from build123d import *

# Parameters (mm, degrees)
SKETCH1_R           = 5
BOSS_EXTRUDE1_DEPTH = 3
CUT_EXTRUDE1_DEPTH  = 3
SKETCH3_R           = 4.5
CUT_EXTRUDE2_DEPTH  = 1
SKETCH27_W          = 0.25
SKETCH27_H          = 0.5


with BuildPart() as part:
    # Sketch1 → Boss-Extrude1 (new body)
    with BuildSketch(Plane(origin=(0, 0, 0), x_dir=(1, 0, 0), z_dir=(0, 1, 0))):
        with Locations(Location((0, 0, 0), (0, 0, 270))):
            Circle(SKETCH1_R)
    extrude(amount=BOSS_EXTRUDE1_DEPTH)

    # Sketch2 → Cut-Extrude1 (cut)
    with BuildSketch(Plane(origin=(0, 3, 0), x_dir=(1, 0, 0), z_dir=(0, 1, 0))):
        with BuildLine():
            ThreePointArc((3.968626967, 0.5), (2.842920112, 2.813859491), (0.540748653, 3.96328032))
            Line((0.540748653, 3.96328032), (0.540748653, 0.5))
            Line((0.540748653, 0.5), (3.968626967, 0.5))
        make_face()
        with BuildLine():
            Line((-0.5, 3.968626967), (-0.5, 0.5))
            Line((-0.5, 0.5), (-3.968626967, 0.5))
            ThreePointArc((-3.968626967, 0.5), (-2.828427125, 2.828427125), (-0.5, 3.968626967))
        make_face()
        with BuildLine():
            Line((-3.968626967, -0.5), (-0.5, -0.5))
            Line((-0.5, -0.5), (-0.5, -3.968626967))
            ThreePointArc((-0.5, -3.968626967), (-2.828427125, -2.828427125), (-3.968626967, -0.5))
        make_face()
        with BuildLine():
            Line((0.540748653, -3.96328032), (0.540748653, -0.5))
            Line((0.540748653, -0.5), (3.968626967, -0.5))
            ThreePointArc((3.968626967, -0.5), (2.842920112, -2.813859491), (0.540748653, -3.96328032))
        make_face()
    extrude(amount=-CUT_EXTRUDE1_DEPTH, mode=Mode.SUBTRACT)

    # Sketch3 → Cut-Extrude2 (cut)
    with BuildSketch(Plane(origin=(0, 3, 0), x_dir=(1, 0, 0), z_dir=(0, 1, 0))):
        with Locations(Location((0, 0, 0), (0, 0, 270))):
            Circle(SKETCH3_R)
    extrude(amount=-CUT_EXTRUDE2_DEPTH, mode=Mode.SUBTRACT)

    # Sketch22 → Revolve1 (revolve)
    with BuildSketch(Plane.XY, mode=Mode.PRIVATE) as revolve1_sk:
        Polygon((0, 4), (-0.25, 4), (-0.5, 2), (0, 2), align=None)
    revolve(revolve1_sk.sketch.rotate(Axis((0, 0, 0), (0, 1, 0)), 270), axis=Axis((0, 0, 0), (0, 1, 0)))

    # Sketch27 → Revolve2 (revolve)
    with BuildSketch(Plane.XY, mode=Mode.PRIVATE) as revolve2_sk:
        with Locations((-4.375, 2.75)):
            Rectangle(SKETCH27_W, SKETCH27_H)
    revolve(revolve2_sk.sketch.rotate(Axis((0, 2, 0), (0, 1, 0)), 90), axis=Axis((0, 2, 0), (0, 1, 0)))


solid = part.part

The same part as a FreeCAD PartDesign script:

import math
import FreeCAD as App
import Part
import Sketcher

V = App.Vector


def add_polygon(sketch, points):
    """Adds a closed chain of lines whose ends are joined by coincident constraints."""
    first, n = sketch.GeometryCount, len(points)
    for a, b in zip(points, points[1:] + points[:1]):
        sketch.addGeometry(Part.LineSegment(App.Vector(*a, 0), App.Vector(*b, 0)), False)
    for i in range(n):
        sketch.addConstraint(Sketcher.Constraint("Coincident", first + i, 2, first + (i + 1) % n, 1))

doc = App.newDocument("Part")
body = doc.addObject("PartDesign::Body", "Body")

sketch1 = body.newObject("Sketcher::SketchObject", "Sketch")
sketch1.AttachmentSupport = (doc.getObject("XZ_Plane"), [""])
sketch1.MapMode = "FlatFace"
sketch1.addGeometry(Part.Circle(V(0, 0, 0), V(0, 0, 1), 5), False)
sketch1.addConstraint([
    Sketcher.Constraint("Coincident", 0, 3, -1, 1),
    Sketcher.Constraint("Diameter", 0, 10.0),
])
pad1 = body.newObject("PartDesign::Pad", "Pad")
pad1.Profile = sketch1
pad1.Length = 3
pad1.Reversed = True

sketch2 = body.newObject("Sketcher::SketchObject", "Sketch001")
sketch2.AttachmentSupport = (doc.getObject("XZ_Plane"), [""])
sketch2.MapMode = "FlatFace"
sketch2.AttachmentOffset = App.Placement(V(0, 0, -3), App.Rotation())
sketch2.addGeometry([
    Part.ArcOfCircle(Part.Circle(V(0, 0, 0), V(0, 0, 1), 4), math.radians(-82), math.radians(-7)),
    Part.LineSegment(V(0.5, -4, 0), V(0.5, -0.5, 0)),
    Part.LineSegment(V(0.5, -0.5, 0), V(4, -0.5, 0)),
    Part.LineSegment(V(-0.5, -0.5, 0), V(-0.5, -4, 0)),
    Part.ArcOfCircle(Part.Circle(V(0, 0, 0), V(0, 0, 1), 4), math.radians(-173), math.radians(-97)),
    Part.LineSegment(V(-4, -0.5, 0), V(-0.5, -0.5, 0)),
    Part.LineSegment(V(-0.5, 0.5, 0), V(-4, 0.5, 0)),
    Part.ArcOfCircle(Part.Circle(V(0, 0, 0), V(0, 0, 1), 4), math.radians(97), math.radians(173)),
    Part.LineSegment(V(-0.5, 4, 0), V(-0.5, 0.5, 0)),
    Part.LineSegment(V(0.5, 0.5, 0), V(0.5, 4, 0)),
    Part.ArcOfCircle(Part.Circle(V(0, 0, 0), V(0, 0, 1), 4), math.radians(7), math.radians(82)),
    Part.LineSegment(V(4, 0.5, 0), V(0.5, 0.5, 0)),
], False)
sketch2.addConstraint([
    Sketcher.Constraint("Coincident", 0, 1, 1, 1),
    Sketcher.Constraint("Coincident", 1, 2, 2, 1),
    Sketcher.Constraint("Coincident", 2, 2, 0, 2),
    Sketcher.Constraint("Coincident", 3, 2, 4, 2),
    Sketcher.Constraint("Coincident", 4, 1, 5, 1),
    Sketcher.Constraint("Coincident", 5, 2, 3, 1),
    Sketcher.Constraint("Coincident", 6, 2, 7, 2),
    Sketcher.Constraint("Coincident", 7, 1, 8, 1),
    Sketcher.Constraint("Coincident", 8, 2, 6, 1),
    Sketcher.Constraint("Coincident", 9, 2, 10, 2),
    Sketcher.Constraint("Coincident", 10, 1, 11, 1),
    Sketcher.Constraint("Coincident", 11, 2, 9, 1),
    Sketcher.Constraint("Vertical", 1),
    Sketcher.Constraint("Horizontal", 2),
    Sketcher.Constraint("Vertical", 3),
    Sketcher.Constraint("Horizontal", 5),
    Sketcher.Constraint("Horizontal", 6),
    Sketcher.Constraint("Vertical", 8),
    Sketcher.Constraint("Vertical", 9),
    Sketcher.Constraint("Horizontal", 11),
    Sketcher.Constraint("Coincident", 0, 3, -1, 1),
    Sketcher.Constraint("Coincident", 4, 3, -1, 1),
    Sketcher.Constraint("Coincident", 7, 3, -1, 1),
    Sketcher.Constraint("Coincident", 10, 3, -1, 1),
    Sketcher.Constraint("Equal", 0, 4),
    Sketcher.Constraint("Equal", 4, 7),
    Sketcher.Constraint("Equal", 7, 10),
    Sketcher.Constraint("Symmetric", 5, 2, 8, 2, -1),
    Sketcher.Constraint("Symmetric", 1, 2, 11, 2, -1),
    Sketcher.Constraint("Horizontal", 2, 2, 4, 1),
    Sketcher.Constraint("Equal", 6, 3),
    Sketcher.Constraint("Radius", 0, 4.0),
    Sketcher.Constraint("DistanceY", 4, 1, 6, 2, 1.0),
    Sketcher.Constraint("DistanceX", 2, 1, 2, 2, 3.427878),
])
pocket1 = body.newObject("PartDesign::Pocket", "Pocket")
pocket1.Profile = sketch2
pocket1.Length = 3
pocket1.Reversed = True

sketch3 = body.newObject("Sketcher::SketchObject", "Sketch002")
sketch3.AttachmentSupport = (doc.getObject("XZ_Plane"), [""])
sketch3.MapMode = "FlatFace"
sketch3.AttachmentOffset = App.Placement(V(0, 0, -3), App.Rotation())
sketch3.addGeometry(Part.Circle(V(0, 0, 0), V(0, 0, 1), 4.5), False)
sketch3.addConstraint([
    Sketcher.Constraint("Coincident", 0, 3, -1, 1),
    Sketcher.Constraint("Diameter", 0, 9.0),
])
pocket2 = body.newObject("PartDesign::Pocket", "Pocket001")
pocket2.Profile = sketch3
pocket2.Length = 1
pocket2.Reversed = True

sketch4 = body.newObject("Sketcher::SketchObject", "Sketch003")
sketch4.AttachmentSupport = (doc.getObject("XY_Plane"), [""])
sketch4.MapMode = "FlatFace"
add_polygon(sketch4, [(0, 4), (-0.25, 4), (-0.5, 2), (0, 2)])
sketch4.addConstraint([
    Sketcher.Constraint("Horizontal", 0),
    Sketcher.Constraint("Horizontal", 2),
    Sketcher.Constraint("Vertical", 3),
    Sketcher.Constraint("PointOnObject", 2, 2, -2),
    Sketcher.Constraint("DistanceY", 3, 1, 3, 2, 2.0),
    Sketcher.Constraint("DistanceX", 2, 1, 2, 2, 0.5),
    Sketcher.Constraint("DistanceY", -1, 1, 0, 2, 4.0),
    Sketcher.Constraint("DistanceX", 0, 2, 0, 1, 0.25),
])
revolution = body.newObject("PartDesign::Revolution", "Revolution")
revolution.Profile = sketch4
revolution.ReferenceAxis = (sketch4, ["V_Axis"])
revolution.Angle = 360

sketch5 = body.newObject("Sketcher::SketchObject", "Sketch004")
sketch5.AttachmentSupport = (doc.getObject("XY_Plane"), [""])
sketch5.MapMode = "FlatFace"
add_polygon(sketch5, [(-4.5, 3), (-4.5, 2.5), (-4.25, 2.5), (-4.25, 3)])
sketch5.addConstraint([
    Sketcher.Constraint("Vertical", 0),
    Sketcher.Constraint("Horizontal", 1),
    Sketcher.Constraint("Vertical", 2),
    Sketcher.Constraint("Horizontal", 3),
    Sketcher.Constraint("DistanceY", 0, 2, 0, 1, 0.5),
    Sketcher.Constraint("DistanceY", -1, 1, 2, 2, 3.0),
    Sketcher.Constraint("DistanceX", 1, 1, 1, 2, 0.25),
    Sketcher.Constraint("DistanceX", 0, 2, -1, 1, 4.5),
])
revolution2 = body.newObject("PartDesign::Revolution", "Revolution001")
revolution2.Profile = sketch5
revolution2.ReferenceAxis = (sketch5, ["V_Axis"])
revolution2.Angle = 360

doc.recompute()
